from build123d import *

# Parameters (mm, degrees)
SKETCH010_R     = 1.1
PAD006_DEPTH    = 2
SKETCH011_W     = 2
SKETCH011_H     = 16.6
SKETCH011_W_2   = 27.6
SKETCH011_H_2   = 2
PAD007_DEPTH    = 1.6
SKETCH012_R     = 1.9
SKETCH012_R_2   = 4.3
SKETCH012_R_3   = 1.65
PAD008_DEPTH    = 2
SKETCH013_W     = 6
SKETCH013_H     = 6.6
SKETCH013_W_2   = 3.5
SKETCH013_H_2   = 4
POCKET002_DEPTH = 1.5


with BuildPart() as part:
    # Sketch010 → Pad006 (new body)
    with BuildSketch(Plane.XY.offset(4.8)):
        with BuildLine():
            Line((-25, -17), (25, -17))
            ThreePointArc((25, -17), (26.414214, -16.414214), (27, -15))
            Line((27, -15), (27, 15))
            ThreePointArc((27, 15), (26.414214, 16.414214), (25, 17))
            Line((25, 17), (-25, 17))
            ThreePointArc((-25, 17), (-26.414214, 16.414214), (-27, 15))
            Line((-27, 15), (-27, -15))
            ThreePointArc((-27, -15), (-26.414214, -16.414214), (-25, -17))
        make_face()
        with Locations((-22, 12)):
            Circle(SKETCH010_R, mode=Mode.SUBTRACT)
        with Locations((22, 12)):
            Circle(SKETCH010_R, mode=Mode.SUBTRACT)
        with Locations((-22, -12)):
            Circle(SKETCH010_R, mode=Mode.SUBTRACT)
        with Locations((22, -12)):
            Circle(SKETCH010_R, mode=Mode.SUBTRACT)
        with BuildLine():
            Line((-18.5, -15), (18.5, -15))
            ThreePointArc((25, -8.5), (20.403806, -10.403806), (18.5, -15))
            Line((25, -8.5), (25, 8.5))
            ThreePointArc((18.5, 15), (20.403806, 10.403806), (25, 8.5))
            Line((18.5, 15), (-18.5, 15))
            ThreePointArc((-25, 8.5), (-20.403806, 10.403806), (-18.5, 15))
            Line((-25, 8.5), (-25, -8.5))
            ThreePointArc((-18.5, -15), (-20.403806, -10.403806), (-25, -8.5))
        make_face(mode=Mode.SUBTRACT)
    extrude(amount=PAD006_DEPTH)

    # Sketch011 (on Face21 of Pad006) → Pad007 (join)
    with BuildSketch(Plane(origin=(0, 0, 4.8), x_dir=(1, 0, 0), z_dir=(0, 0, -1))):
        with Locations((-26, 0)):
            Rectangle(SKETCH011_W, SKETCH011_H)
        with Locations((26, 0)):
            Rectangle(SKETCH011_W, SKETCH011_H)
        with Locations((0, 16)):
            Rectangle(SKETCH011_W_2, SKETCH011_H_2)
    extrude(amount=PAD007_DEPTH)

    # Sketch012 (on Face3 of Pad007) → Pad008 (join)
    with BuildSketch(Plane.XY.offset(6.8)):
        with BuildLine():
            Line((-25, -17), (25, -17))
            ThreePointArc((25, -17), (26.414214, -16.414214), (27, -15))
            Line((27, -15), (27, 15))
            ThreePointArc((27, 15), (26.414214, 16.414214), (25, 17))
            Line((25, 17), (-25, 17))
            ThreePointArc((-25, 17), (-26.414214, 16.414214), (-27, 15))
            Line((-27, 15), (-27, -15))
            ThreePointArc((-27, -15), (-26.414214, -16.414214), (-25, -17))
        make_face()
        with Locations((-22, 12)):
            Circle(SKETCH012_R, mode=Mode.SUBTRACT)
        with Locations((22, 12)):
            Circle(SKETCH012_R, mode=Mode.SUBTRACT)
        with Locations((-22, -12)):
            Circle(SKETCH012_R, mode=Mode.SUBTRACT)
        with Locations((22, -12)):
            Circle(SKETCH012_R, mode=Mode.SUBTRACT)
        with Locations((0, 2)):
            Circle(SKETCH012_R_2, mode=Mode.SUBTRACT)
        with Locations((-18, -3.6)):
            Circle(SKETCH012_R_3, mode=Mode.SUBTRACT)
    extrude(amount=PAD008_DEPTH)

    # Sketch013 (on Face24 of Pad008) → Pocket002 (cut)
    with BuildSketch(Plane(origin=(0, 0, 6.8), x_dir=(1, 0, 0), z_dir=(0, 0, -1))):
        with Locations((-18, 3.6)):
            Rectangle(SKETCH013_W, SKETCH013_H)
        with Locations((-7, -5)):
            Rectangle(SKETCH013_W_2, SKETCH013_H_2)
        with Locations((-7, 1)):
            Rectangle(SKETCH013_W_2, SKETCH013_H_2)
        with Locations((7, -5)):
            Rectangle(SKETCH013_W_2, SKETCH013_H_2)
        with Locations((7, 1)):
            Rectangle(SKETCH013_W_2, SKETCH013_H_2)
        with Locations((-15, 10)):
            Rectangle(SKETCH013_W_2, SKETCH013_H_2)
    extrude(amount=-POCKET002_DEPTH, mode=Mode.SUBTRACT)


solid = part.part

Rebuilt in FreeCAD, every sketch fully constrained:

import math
import FreeCAD as App
import Part
import Sketcher
from FreeCAD import Vector


def add_polygon(sketch, points):
    """Adds a closed chain of lines whose ends are joined by coincident constraints."""
    first, n = sketch.GeometryCount, len(points)
    for a, b in zip(points, points[1:] + points[:1]):
        sketch.addGeometry(Part.LineSegment(App.Vector(*a, 0), App.Vector(*b, 0)), False)
    for i in range(n):
        sketch.addConstraint(Sketcher.Constraint("Coincident", first + i, 2, first + (i + 1) % n, 1))

doc = App.newDocument("Part")
params = doc.addObject("Spreadsheet::Sheet", "Params")
for row, (alias, value) in enumerate([
    ("sketch1_radius", "1.999999 mm"),
    ("sketch1_diameter", "2.2 mm"),
    ("sketch1_radius2", "6.5 mm"),
    ("sketch1_width", "50 mm"),
    ("sketch1_height", "30 mm"),
    ("pad1_length", "2 mm"),
    ("sketch2_width", "2 mm"),
    ("sketch2_width2", "27.6 mm"),
    ("sketch2_height", "16.6 mm"),
    ("pad2_length", "1.6 mm"),
    ("sketch3_radius", "1.999999 mm"),
    ("sketch3_diameter", "3.8 mm"),
    ("sketch3_diameter2", "3.3 mm"),
    ("sketch3_diameter3", "8.6 mm"),
    ("sketch3_width", "50 mm"),
    ("pad3_length", "2 mm"),
    ("sketch4_width", "6 mm"),
    ("sketch4_height", "4 mm"),
    ("sketch4_width2", "3.5 mm"),
    ("sketch4_height2", "6.6 mm"),
    ("pocket1_length", "1.5 mm"),
], start=1):
    params.set(f"A{row}", alias)
    params.set(f"B{row}", "=" + value)
    params.setAlias(f"B{row}", alias)

body = doc.addObject("PartDesign::Body", "Body")

sketch1 = body.newObject("Sketcher::SketchObject", "Sketch")
sketch1.AttachmentSupport = (doc.getObject("XY_Plane"), [""])
sketch1.MapMode = "FlatFace"
sketch1.AttachmentOffset = App.Placement(Vector(0, 0, 4.8), App.Rotation())
sketch1.addGeometry([
    Part.LineSegment(Vector(-25, -17, 0), Vector(25, -17, 0)),
    Part.ArcOfCircle(Part.Circle(Vector(25.000001, -15.000001, 0), Vector(0, 0, 1), 1.999999), math.radians(-90.000043), math.radians(0.000043)),
    Part.LineSegment(Vector(27, -15, 0), Vector(27, 15, 0)),
    Part.ArcOfCircle(Part.Circle(Vector(25.000001, 15.000001, 0), Vector(0, 0, 1), 1.999999), math.radians(-0.000043), math.radians(90.000043)),
    Part.LineSegment(Vector(25, 17, 0), Vector(-25, 17, 0)),
    Part.ArcOfCircle(Part.Circle(Vector(-25.000001, 15.000001, 0), Vector(0, 0, 1), 1.999999), math.radians(89.999957), math.radians(180.000043)),
    Part.LineSegment(Vector(-27, 15, 0), Vector(-27, -15, 0)),
    Part.ArcOfCircle(Part.Circle(Vector(-25.000001, -15.000001, 0), Vector(0, 0, 1), 1.999999), math.radians(179.999957), math.radians(270.000043)),
    Part.Circle(Vector(-22, -12, 0), Vector(0, 0, 1), 1.1),
    Part.Circle(Vector(22, -12, 0), Vector(0, 0, 1), 1.1),
    Part.Circle(Vector(-22, 12, 0), Vector(0, 0, 1), 1.1),
    Part.LineSegment(Vector(18.5, -15, 0), Vector(-18.5, -15, 0)),
    Part.ArcOfCircle(Part.Circle(Vector(-25, -15, 0), Vector(0, 0, 1), 6.5), math.radians(0.000002), math.radians(89.999998)),
    Part.LineSegment(Vector(-25, -8.5, 0), Vector(-25, 8.5, 0)),
    Part.ArcOfCircle(Part.Circle(Vector(-25, 15, 0), Vector(0, 0, 1), 6.5), math.radians(-89.999998), math.radians(-0.000002)),
    Part.LineSegment(Vector(-18.5, 15, 0), Vector(18.5, 15, 0)),
    Part.ArcOfCircle(Part.Circle(Vector(25, 15, 0), Vector(0, 0, 1), 6.5), math.radians(-179.999998), math.radians(-90.000002)),
    Part.LineSegment(Vector(25, 8.5, 0), Vector(25, -8.5, 0)),
    Part.ArcOfCircle(Part.Circle(Vector(25, -15, 0), Vector(0, 0, 1), 6.5), math.radians(90.000002), math.radians(179.999998)),
    Part.Circle(Vector(22, 12, 0), Vector(0, 0, 1), 1.1),
], False)
sketch1.addConstraint([
    Sketcher.Constraint("Tangent", 0, 2, 1, 1),
    Sketcher.Constraint("Tangent", 1, 2, 2, 1),
    Sketcher.Constraint("Tangent", 2, 2, 3, 1),
    Sketcher.Constraint("Tangent", 3, 2, 4, 1),
    Sketcher.Constraint("Tangent", 4, 2, 5, 1),
    Sketcher.Constraint("Tangent", 5, 2, 6, 1),
    Sketcher.Constraint("Tangent", 6, 2, 7, 1),
    Sketcher.Constraint("Tangent", 7, 2, 0, 1),
    Sketcher.Constraint("Coincident", 11, 2, 12, 1),
    Sketcher.Constraint("Coincident", 12, 2, 13, 1),
    Sketcher.Constraint("Coincident", 13, 2, 14, 1),
    Sketcher.Constraint("Coincident", 14, 2, 15, 1),
    Sketcher.Constraint("Coincident", 15, 2, 16, 1),
    Sketcher.Constraint("Coincident", 16, 2, 17, 1),
    Sketcher.Constraint("Coincident", 17, 2, 18, 1),
    Sketcher.Constraint("Coincident", 18, 2, 11, 1),
    Sketcher.Constraint("Horizontal", 0),
    Sketcher.Constraint("Vertical", 2),
    Sketcher.Constraint("Horizontal", 4),
    Sketcher.Constraint("Vertical", 6),
    Sketcher.Constraint("Horizontal", 11),
    Sketcher.Constraint("Vertical", 13),
    Sketcher.Constraint("Horizontal", 15),
    Sketcher.Constraint("Vertical", 17),
    Sketcher.Constraint("Coincident", 12, 3, 7, 3),
    Sketcher.Constraint("Coincident", 14, 3, 5, 3),
    Sketcher.Constraint("Coincident", 16, 3, 3, 3),
    Sketcher.Constraint("Coincident", 18, 3, 1, 3),
    Sketcher.Constraint("Equal", 1, 3),
    Sketcher.Constraint("Equal", 3, 5),
    Sketcher.Constraint("Equal", 5, 7),
    Sketcher.Constraint("Equal", 8, 9),
    Sketcher.Constraint("Equal", 9, 10),
    Sketcher.Constraint("Equal", 12, 14),
    Sketcher.Constraint("Equal", 14, 16),
    Sketcher.Constraint("Equal", 16, 18),
    Sketcher.Constraint("Equal", 10, 19),
    Sketcher.Constraint("Symmetric", 1, 3, 5, 3, -1, 1),
    Sketcher.Constraint("Symmetric", 9, 3, 10, 3, -1, 1),
    Sketcher.Constraint("Symmetric", 8, 3, 19, 3, -1, 1),
    Sketcher.Constraint("Symmetric", 8, 3, 9, 3, -2),
    Sketcher.Constraint("Horizontal", 6, 2, 11, 2),
    Sketcher.Constraint("Horizontal", 5, 2, 14, 2),
    Sketcher.Constraint("Vertical", 7, 2, 12, 2),
    Sketcher.Constraint("Vertical", 3, 2, 16, 2),
    Sketcher.Constraint("Radius", 1, 1.999999),
    Sketcher.Constraint("Diameter", 8, 2.2),
    Sketcher.Constraint("Radius", 12, 6.5),
    Sketcher.Constraint("DistanceX", 0, 1, 0, 2, 50.0),
    Sketcher.Constraint("DistanceY", 2, 1, 2, 2, 30.0),
    Sketcher.Constraint("DistanceX", 8, 3, -1, 1, 22.0),
    Sketcher.Constraint("DistanceY", 8, 3, -1, 1, 12.0),
])
sketch1.setExpression("Constraints[45]", "Params.sketch1_radius")
sketch1.setExpression("Constraints[46]", "Params.sketch1_diameter")
sketch1.setExpression("Constraints[47]", "Params.sketch1_radius2")
sketch1.setExpression("Constraints[48]", "Params.sketch1_width")
sketch1.setExpression("Constraints[49]", "Params.sketch1_height")
pad1 = body.newObject("PartDesign::Pad", "Pad")
pad1.Profile = sketch1
pad1.setExpression("Length", "Params.pad1_length")

sketch2 = body.newObject("Sketcher::SketchObject", "Sketch001")
sketch2.AttachmentSupport = (doc.getObject("XY_Plane"), [""])
sketch2.MapMode = "FlatFace"
sketch2.AttachmentOffset = App.Placement(Vector(0, 0, 4.8), App.Rotation())
add_polygon(sketch2, [(-27, -8.3), (-27, 8.3), (-25, 8.3), (-25, -8.3)])
add_polygon(sketch2, [(25, -8.3), (25, 8.3), (27, 8.3), (27, -8.3)])
add_polygon(sketch2, [(-13.8, -17), (-13.8, -15), (13.8, -15), (13.8, -17)])
sketch2.addConstraint([
    Sketcher.Constraint("Vertical", 0),
    Sketcher.Constraint("Horizontal", 1),
    Sketcher.Constraint("Vertical", 2),
    Sketcher.Constraint("Horizontal", 3),
    Sketcher.Constraint("Vertical", 4),
    Sketcher.Constraint("Horizontal", 5),
    Sketcher.Constraint("Vertical", 6),
    Sketcher.Constraint("Horizontal", 7),
    Sketcher.Constraint("Vertical", 8),
    Sketcher.Constraint("Horizontal", 9),
    Sketcher.Constraint("Vertical", 10),
    Sketcher.Constraint("Horizontal", 11),
    Sketcher.Constraint("Symmetric", 2, 2, 4, 2, -1, 1),
    Sketcher.Constraint("Symmetric", 0, 2, 6, 2, -1, 1),
    Sketcher.Constraint("Horizontal", 1, 2, 4, 2),
    Sketcher.Constraint("Equal", 7, 8),
    Sketcher.Constraint("DistanceX", 1, 1, 1, 2, 2.0),
    Sketcher.Constraint("DistanceX", 9, 1, 9, 2, 27.6),
    Sketcher.Constraint("DistanceY", 0, 1, 0, 2, 16.6),
    Sketcher.Constraint("DistanceX", 0, 2, -1, 1, 27.0),
    Sketcher.Constraint("DistanceY", 8, 2, -1, 1, 15.0),
    Sketcher.Constraint("DistanceX", 8, 2, -1, 1, 13.8),
])
sketch2.setExpression("Constraints[28]", "Params.sketch2_width")
sketch2.setExpression("Constraints[29]", "Params.sketch2_width2")
sketch2.setExpression("Constraints[30]", "Params.sketch2_height")
pad2 = body.newObject("PartDesign::Pad", "Pad001")
pad2.Profile = sketch2
pad2.setExpression("Length", "Params.pad2_length")
pad2.Reversed = True

sketch3 = body.newObject("Sketcher::SketchObject", "Sketch002")
sketch3.AttachmentSupport = (doc.getObject("XY_Plane"), [""])
sketch3.MapMode = "FlatFace"
sketch3.AttachmentOffset = App.Placement(Vector(0, 0, 6.8), App.Rotation())
sketch3.addGeometry([
    Part.LineSegment(Vector(-25, -17, 0), Vector(25, -17, 0)),
    Part.ArcOfCircle(Part.Circle(Vector(25.000001, -15.000001, 0), Vector(0, 0, 1), 1.999999), math.radians(-90.000043), math.radians(0.000043)),
    Part.LineSegment(Vector(27, -15, 0), Vector(27, 15, 0)),
    Part.ArcOfCircle(Part.Circle(Vector(25.000001, 15.000001, 0), Vector(0, 0, 1), 1.999999), math.radians(-0.000043), math.radians(90.000043)),
    Part.LineSegment(Vector(25, 17, 0), Vector(-25, 17, 0)),
    Part.ArcOfCircle(Part.Circle(Vector(-25.000001, 15.000001, 0), Vector(0, 0, 1), 1.999999), math.radians(89.999957), math.radians(180.000043)),
    Part.LineSegment(Vector(-27, 15, 0), Vector(-27, -15, 0)),
    Part.ArcOfCircle(Part.Circle(Vector(-25.000001, -15.000001, 0), Vector(0, 0, 1), 1.999999), math.radians(179.999957), math.radians(270.000043)),
    Part.Circle(Vector(-22, -12, 0), Vector(0, 0, 1), 1.9),
    Part.Circle(Vector(-18, -3.6, 0), Vector(0, 0, 1), 1.65),
    Part.Circle(Vector(22, -12, 0), Vector(0, 0, 1), 1.9),
    Part.Circle(Vector(-22, 12, 0), Vector(0, 0, 1), 1.9),
    Part.Circle(Vector(0, 2, 0), Vector(0, 0, 1), 4.3),
    Part.Circle(Vector(22, 12, 0), Vector(0, 0, 1), 1.9),
], False)
sketch3.addConstraint([
    Sketcher.Constraint("Tangent", 0, 2, 1, 1),
    Sketcher.Constraint("Tangent", 1, 2, 2, 1),
    Sketcher.Constraint("Tangent", 2, 2, 3, 1),
    Sketcher.Constraint("Tangent", 3, 2, 4, 1),
    Sketcher.Constraint("Tangent", 4, 2, 5, 1),
    Sketcher.Constraint("Tangent", 5, 2, 6, 1),
    Sketcher.Constraint("Tangent", 6, 2, 7, 1),
    Sketcher.Constraint("Tangent", 7, 2, 0, 1),
    Sketcher.Constraint("Horizontal", 0),
    Sketcher.Constraint("Vertical", 2),
    Sketcher.Constraint("Horizontal", 4),
    Sketcher.Constraint("Vertical", 6),
    Sketcher.Constraint("Equal", 1, 3),
    Sketcher.Constraint("Equal", 3, 5),
    Sketcher.Constraint("Equal", 5, 7),
    Sketcher.Constraint("Equal", 8, 10),
    Sketcher.Constraint("Equal", 10, 11),
    Sketcher.Constraint("Equal", 11, 13),
    Sketcher.Constraint("Symmetric", 1, 3, 5, 3, -1, 1),
    Sketcher.Constraint("Symmetric", 10, 3, 11, 3, -1, 1),
    Sketcher.Constraint("Symmetric", 8, 3, 13, 3, -1, 1),
    Sketcher.Constraint("Symmetric", 8, 3, 10, 3, -2),
    Sketcher.Constraint("PointOnObject", 12, 3, -2),
    Sketcher.Constraint("Radius", 1, 1.999999),
    Sketcher.Constraint("Diameter", 8, 3.8),
    Sketcher.Constraint("Diameter", 9, 3.3),
    Sketcher.Constraint("Diameter", 12, 8.6),
    Sketcher.Constraint("DistanceX", 0, 1, 0, 2, 50.0),
    Sketcher.Constraint("DistanceY", 2, 1, 2, 2, 30.0),
    Sketcher.Constraint("DistanceX", 8, 3, -1, 1, 22.0),
    Sketcher.Constraint("DistanceY", 8, 3, -1, 1, 12.0),
    Sketcher.Constraint("DistanceX", 9, 3, -1, 1, 18.0),
    Sketcher.Constraint("DistanceY", -1, 1, 12, 3, 2.0),
    Sketcher.Constraint("DistanceY", 9, 3, -1, 1, 3.6),
])
sketch3.setExpression("Constraints[23]", "Params.sketch3_radius")
sketch3.setExpression("Constraints[24]", "Params.sketch3_diameter")
sketch3.setExpression("Constraints[25]", "Params.sketch3_diameter2")
sketch3.setExpression("Constraints[26]", "Params.sketch3_diameter3")
sketch3.setExpression("Constraints[27]", "Params.sketch3_width")
pad3 = body.newObject("PartDesign::Pad", "Pad002")
pad3.Profile = sketch3
pad3.setExpression("Length", "Params.pad3_length")

sketch4 = body.newObject("Sketcher::SketchObject", "Sketch003")
sketch4.AttachmentSupport = (doc.getObject("XY_Plane"), [""])
sketch4.MapMode = "FlatFace"
sketch4.AttachmentOffset = App.Placement(Vector(0, 0, 6.8), App.Rotation())
add_polygon(sketch4, [(-21, -6.9), (-21, -0.3), (-15, -0.3), (-15, -6.9)])
add_polygon(sketch4, [(-8.75, 3), (-8.75, 7), (-5.25, 7), (-5.25, 3)])
add_polygon(sketch4, [(-8.75, -3), (-8.75, 1), (-5.25, 1), (-5.25, -3)])
add_polygon(sketch4, [(5.25, 3), (5.25, 7), (8.75, 7), (8.75, 3)])
add_polygon(sketch4, [(5.25, -3), (5.25, 1), (8.75, 1), (8.75, -3)])
add_polygon(sketch4, [(-16.75, -12), (-16.75, -8), (-13.25, -8), (-13.25, -12)])
sketch4.addConstraint([
    Sketcher.Constraint("Vertical", 0),
    Sketcher.Constraint("Horizontal", 1),
    Sketcher.Constraint("Vertical", 2),
    Sketcher.Constraint("Horizontal", 3),
    Sketcher.Constraint("Vertical", 4),
    Sketcher.Constraint("Horizontal", 5),
    Sketcher.Constraint("Vertical", 6),
    Sketcher.Constraint("Horizontal", 7),
    Sketcher.Constraint("Vertical", 8),
    Sketcher.Constraint("Horizontal", 9),
    Sketcher.Constraint("Vertical", 10),
    Sketcher.Constraint("Horizontal", 11),
    Sketcher.Constraint("Vertical", 12),
    Sketcher.Constraint("Horizontal", 13),
    Sketcher.Constraint("Vertical", 14),
    Sketcher.Constraint("Horizontal", 15),
    Sketcher.Constraint("Vertical", 16),
    Sketcher.Constraint("Horizontal", 17),
    Sketcher.Constraint("Vertical", 18),
    Sketcher.Constraint("Horizontal", 19),
    Sketcher.Constraint("Vertical", 20),
    Sketcher.Constraint("Horizontal", 21),
    Sketcher.Constraint("Vertical", 22),
    Sketcher.Constraint("Horizontal", 23),
    Sketcher.Constraint("Symmetric", 11, 2, 14, 2, -1, 1),
    Sketcher.Constraint("Symmetric", 7, 2, 18, 2, -1, 1),
    Sketcher.Constraint("Symmetric", 5, 2, 12, 2, -2),
    Sketcher.Constraint("Symmetric", 7, 2, 14, 2, -2),
    Sketcher.Constraint("Symmetric", 9, 2, 16, 2, -2),
    Sketcher.Constraint("Vertical", 6, 2, 9, 2),
    Sketcher.Constraint("Equal", 19, 21),
    Sketcher.Constraint("Equal", 6, 8),
    Sketcher.Constraint("Equal", 18, 20),
    Sketcher.Constraint("DistanceX", 1, 1, 1, 2, 6.0),
    Sketcher.Constraint("DistanceY", 4, 1, 4, 2, 4.0),
    Sketcher.Constraint("DistanceX", 5, 1, 5, 2, 3.5),
    Sketcher.Constraint("DistanceY", 0, 1, 0, 2, 6.6),
    Sketcher.Constraint("DistanceX", 0, 2, -1, 1, 21.0),
    Sketcher.Constraint("DistanceY", -1, 1, 4, 2, 7.0),
    Sketcher.Constraint("DistanceY", 20, 2, -1, 1, 8.0),
    Sketcher.Constraint("DistanceX", 4, 2, 12, 2, 14.0),
    Sketcher.Constraint("DistanceX", 20, 2, 11, 2, 8.0),
    Sketcher.Constraint("DistanceY", 0, 2, -1, 1, 0.3),
])
sketch4.setExpression("Constraints[57]", "Params.sketch4_width")
sketch4.setExpression("Constraints[58]", "Params.sketch4_height")
sketch4.setExpression("Constraints[59]", "Params.sketch4_width2")
sketch4.setExpression("Constraints[60]", "Params.sketch4_height2")
pocket1 = body.newObject("PartDesign::Pocket", "Pocket")
pocket1.Profile = sketch4
pocket1.setExpression("Length", "Params.pocket1_length")
pocket1.Reversed = True

doc.recompute()
